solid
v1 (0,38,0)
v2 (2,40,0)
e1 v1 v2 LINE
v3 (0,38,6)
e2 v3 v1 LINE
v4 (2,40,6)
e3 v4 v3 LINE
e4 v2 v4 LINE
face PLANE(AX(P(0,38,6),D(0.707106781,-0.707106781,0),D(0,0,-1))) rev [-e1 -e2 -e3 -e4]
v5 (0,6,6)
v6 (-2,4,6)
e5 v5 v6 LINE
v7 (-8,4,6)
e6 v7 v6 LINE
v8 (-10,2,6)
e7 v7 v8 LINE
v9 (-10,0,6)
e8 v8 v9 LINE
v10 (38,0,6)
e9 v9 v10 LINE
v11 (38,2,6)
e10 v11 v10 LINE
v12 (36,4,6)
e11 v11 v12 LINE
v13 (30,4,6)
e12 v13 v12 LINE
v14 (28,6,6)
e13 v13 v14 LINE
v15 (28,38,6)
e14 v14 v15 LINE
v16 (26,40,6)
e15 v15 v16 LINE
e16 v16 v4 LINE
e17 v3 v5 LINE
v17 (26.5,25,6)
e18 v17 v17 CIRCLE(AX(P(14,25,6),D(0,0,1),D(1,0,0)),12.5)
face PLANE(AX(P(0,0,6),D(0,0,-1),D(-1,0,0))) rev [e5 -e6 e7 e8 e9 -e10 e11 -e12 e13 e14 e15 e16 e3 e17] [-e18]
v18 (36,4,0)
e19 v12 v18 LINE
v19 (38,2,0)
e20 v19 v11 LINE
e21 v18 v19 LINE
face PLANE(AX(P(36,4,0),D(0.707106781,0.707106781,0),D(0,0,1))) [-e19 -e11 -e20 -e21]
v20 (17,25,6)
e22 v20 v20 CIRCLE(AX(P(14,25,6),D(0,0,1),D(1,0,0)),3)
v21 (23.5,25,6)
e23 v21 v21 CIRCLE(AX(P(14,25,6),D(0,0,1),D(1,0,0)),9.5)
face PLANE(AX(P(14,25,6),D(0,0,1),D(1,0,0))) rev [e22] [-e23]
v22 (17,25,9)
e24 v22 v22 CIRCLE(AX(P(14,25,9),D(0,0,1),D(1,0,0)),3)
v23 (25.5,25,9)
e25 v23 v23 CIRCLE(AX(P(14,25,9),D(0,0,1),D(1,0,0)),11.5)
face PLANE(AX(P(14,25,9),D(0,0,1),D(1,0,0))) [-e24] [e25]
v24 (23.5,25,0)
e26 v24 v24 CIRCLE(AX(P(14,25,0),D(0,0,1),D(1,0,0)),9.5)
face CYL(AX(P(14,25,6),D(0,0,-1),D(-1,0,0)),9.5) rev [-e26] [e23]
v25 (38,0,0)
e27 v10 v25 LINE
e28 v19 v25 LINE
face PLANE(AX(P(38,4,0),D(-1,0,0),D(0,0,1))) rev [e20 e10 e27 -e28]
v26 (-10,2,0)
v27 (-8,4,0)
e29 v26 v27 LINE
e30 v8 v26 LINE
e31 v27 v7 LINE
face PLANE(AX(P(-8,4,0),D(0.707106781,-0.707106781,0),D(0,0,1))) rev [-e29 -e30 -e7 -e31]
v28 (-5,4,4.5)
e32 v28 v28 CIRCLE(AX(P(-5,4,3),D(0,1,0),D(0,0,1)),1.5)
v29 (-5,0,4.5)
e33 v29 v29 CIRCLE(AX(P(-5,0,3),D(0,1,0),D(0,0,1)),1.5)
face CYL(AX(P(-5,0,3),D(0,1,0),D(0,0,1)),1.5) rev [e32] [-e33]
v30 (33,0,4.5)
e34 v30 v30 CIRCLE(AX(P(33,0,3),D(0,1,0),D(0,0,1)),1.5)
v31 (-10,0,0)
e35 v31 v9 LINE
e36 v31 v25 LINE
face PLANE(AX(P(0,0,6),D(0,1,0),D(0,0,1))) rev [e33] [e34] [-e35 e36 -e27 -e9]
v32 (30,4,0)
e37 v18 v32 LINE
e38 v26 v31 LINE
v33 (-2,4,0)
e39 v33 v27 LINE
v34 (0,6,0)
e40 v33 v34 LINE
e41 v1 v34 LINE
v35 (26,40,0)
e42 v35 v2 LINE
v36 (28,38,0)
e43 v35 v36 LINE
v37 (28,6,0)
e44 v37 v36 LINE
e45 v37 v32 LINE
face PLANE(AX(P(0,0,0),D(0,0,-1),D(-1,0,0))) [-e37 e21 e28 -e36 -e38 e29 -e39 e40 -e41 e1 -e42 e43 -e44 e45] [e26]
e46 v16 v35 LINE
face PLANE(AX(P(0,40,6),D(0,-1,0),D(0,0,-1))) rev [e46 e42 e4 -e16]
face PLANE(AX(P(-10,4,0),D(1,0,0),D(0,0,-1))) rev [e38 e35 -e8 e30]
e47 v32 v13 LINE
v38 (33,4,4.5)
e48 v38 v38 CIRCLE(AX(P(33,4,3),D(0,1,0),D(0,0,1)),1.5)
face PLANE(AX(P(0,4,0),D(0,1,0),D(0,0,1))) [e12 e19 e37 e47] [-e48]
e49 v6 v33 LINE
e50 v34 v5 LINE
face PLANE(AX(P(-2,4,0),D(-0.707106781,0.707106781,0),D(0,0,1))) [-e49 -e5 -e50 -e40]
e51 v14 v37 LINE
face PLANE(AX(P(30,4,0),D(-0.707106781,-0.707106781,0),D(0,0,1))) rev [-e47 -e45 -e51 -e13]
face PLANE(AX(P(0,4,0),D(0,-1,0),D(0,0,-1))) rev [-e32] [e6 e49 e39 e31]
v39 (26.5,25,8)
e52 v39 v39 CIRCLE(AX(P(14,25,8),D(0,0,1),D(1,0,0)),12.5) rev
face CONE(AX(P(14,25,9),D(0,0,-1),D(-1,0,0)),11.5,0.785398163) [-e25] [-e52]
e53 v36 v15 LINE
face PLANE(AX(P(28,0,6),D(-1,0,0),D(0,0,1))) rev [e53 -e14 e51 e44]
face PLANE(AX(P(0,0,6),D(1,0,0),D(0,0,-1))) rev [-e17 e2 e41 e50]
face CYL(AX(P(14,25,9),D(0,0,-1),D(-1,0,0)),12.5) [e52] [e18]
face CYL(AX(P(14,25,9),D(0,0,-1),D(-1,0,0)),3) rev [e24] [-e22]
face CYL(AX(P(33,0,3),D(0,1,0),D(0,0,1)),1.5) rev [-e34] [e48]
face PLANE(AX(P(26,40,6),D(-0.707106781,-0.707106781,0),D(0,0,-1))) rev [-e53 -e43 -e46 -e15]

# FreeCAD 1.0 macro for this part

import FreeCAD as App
import Part
import Sketcher
from FreeCAD import Vector
Q = App.Units.Quantity


def edges_at(feature, points):
    """Names of the edges that pass closest to the given points."""
    edges = feature.Shape.Edges
    near = lambda p: min(range(len(edges)), key=lambda i: edges[i].distToShape(Part.Vertex(*p))[0])
    return sorted({f"Edge{near(p) + 1}" for p in points})

doc = App.newDocument("Part")
params = doc.addObject("Spreadsheet::Sheet", "Params")
for row, (alias, value) in enumerate([
    ("sketch1_diameter", "19 mm"),
    ("sketch1_width", "28 mm"),
    ("sketch1_height", "40 mm"),
    ("pad1_length", "6 mm"),
    ("sketch2_width", "10 mm"),
    ("sketch2_height", "6 mm"),
    ("pad2_length", "4 mm"),
    ("chamfer_size", "2 mm"),
    ("sketch3_diameter", "3 mm"),
    ("sketch4_diameter", "25 mm"),
    ("sketch4_diameter2", "6 mm"),
    ("pad3_length", "3 mm"),
    ("chamfer2_size", "1 mm"),
], start=1):
    params.set(f"A{row}", alias)
    params.set(f"B{row}", "=" + value)
    params.setAlias(f"B{row}", alias)

body = doc.addObject("PartDesign::Body", "Body")

# Sketch on XY plane
sketch1 = doc.addObject("Sketcher::SketchObject", "Sketch")
body.addObject(sketch1)
sketch1.AttachmentSupport = (doc.XY_Plane, [""])
sketch1.MapMode = "FlatFace"
sketch1.addGeometry([
    Part.LineSegment(Vector(0, 40, 0), Vector(0, 0, 0)),  # 0
    Part.LineSegment(Vector(0, 0, 0), Vector(28, 0, 0)),  # 1
    Part.LineSegment(Vector(28, 0, 0), Vector(28, 40, 0)),  # 2
    Part.LineSegment(Vector(28, 40, 0), Vector(0, 40, 0)),  # 3
    Part.Circle(Vector(14, 25, 0), Vector(0, 0, 1), 10),  # 4
], False)
sketch1.addConstraint([
    Sketcher.Constraint("Coincident", 0, 2, 1, 1),
    Sketcher.Constraint("Coincident", 1, 2, 2, 1),
    Sketcher.Constraint("Coincident", 2, 2, 3, 1),
    Sketcher.Constraint("Coincident", 3, 2, 0, 1),
    Sketcher.Constraint("Vertical", 0),
    Sketcher.Constraint("Horizontal", 1),
    Sketcher.Constraint("Vertical", 2),
    Sketcher.Constraint("Horizontal", 3),
    Sketcher.Constraint("Coincident", 0, 2, -1, 1),
    Sketcher.Constraint("Diameter", 4, Q("19 mm")),
    Sketcher.Constraint("DistanceX", 1, 1, 1, 2, Q("28 mm")),
    Sketcher.Constraint("DistanceY", 0, 2, 0, 1, Q("40 mm")),
    Sketcher.Constraint("DistanceX", -1, 1, 4, 3, Q("14 mm")),
    Sketcher.Constraint("DistanceY", -1, 1, 4, 3, Q("25 mm")),
])
sketch1.setExpression("Constraints[9]", "Params.sketch1_diameter")
sketch1.setExpression("Constraints[10]", "Params.sketch1_width")
sketch1.setExpression("Constraints[11]", "Params.sketch1_height")
pad1 = doc.addObject("PartDesign::Pad", "Pad")
body.addObject(pad1)
pad1.Profile = sketch1
pad1.setExpression("Length", "Params.pad1_length")

# Sketch on XZ plane
sketch2 = doc.addObject("Sketcher::SketchObject", "Sketch001")
body.addObject(sketch2)
sketch2.AttachmentSupport = (doc.XZ_Plane, [""])
sketch2.MapMode = "FlatFace"
sketch2.addGeometry([
    Part.LineSegment(Vector(-10, 0, 0), Vector(-10, 6, 0)),  # 0
    Part.LineSegment(Vector(-10, 6, 0), Vector(0, 6, 0)),  # 1
    Part.LineSegment(Vector(0, 6, 0), Vector(0, 0, 0)),  # 2
    Part.LineSegment(Vector(0, 0, 0), Vector(-10, 0, 0)),  # 3
    Part.LineSegment(Vector(28, 0, 0), Vector(28, 6, 0)),  # 4
    Part.LineSegment(Vector(28, 6, 0), Vector(38, 6, 0)),  # 5
    Part.LineSegment(Vector(38, 6, 0), Vector(38, 0, 0)),  # 6
    Part.LineSegment(Vector(38, 0, 0), Vector(28, 0, 0)),  # 7
], False)
sketch2.addConstraint([
    Sketcher.Constraint("Coincident", 0, 2, 1, 1),
    Sketcher.Constraint("Coincident", 1, 2, 2, 1),
    Sketcher.Constraint("Coincident", 2, 2, 3, 1),
    Sketcher.Constraint("Coincident", 3, 2, 0, 1),
    Sketcher.Constraint("Coincident", 4, 2, 5, 1),
    Sketcher.Constraint("Coincident", 5, 2, 6, 1),
    Sketcher.Constraint("Coincident", 6, 2, 7, 1),
    Sketcher.Constraint("Coincident", 7, 2, 4, 1),
    Sketcher.Constraint("Vertical", 0),
    Sketcher.Constraint("Horizontal", 1),
    Sketcher.Constraint("Vertical", 2),
    Sketcher.Constraint("Horizontal", 3),
    Sketcher.Constraint("Vertical", 4),
    Sketcher.Constraint("Horizontal", 5),
    Sketcher.Constraint("Vertical", 6),
    Sketcher.Constraint("Horizontal", 7),
    Sketcher.Constraint("Coincident", 2, 2, -1, 1),
    Sketcher.Constraint("PointOnObject", 6, 2, -1),
    Sketcher.Constraint("Horizontal", 1, 2, 4, 2),
    Sketcher.Constraint("Equal", 3, 5),
    Sketcher.Constraint("DistanceX", 1, 1, 1, 2, Q("10 mm")),
    Sketcher.Constraint("DistanceY", 0, 1, 0, 2, Q("6 mm")),
    Sketcher.Constraint("DistanceX", -1, 1, 4, 2, Q("28 mm")),
])
sketch2.setExpression("Constraints[20]", "Params.sketch2_width")
sketch2.setExpression("Constraints[21]", "Params.sketch2_height")
pad2 = doc.addObject("PartDesign::Pad", "Pad001")
body.addObject(pad2)
pad2.Profile = sketch2
pad2.setExpression("Length", "Params.pad2_length")
pad2.Reversed = True
doc.recompute()

chamfer = doc.addObject("PartDesign::Chamfer", "Chamfer")
body.addObject(chamfer)
chamfer.Base = (pad2, edges_at(pad2, [
    (0, 4, 3),
    (-10, 4, 3),
    (28, 4, 3),
    (38, 4, 3),
    (0, 40, 3),
    (28, 40, 3),
]))
chamfer.setExpression("Size", "Params.chamfer_size")

# Sketch on XZ plane
sketch3 = doc.addObject("Sketcher::SketchObject", "Sketch002")
body.addObject(sketch3)
sketch3.AttachmentSupport = (doc.XZ_Plane, [""])
sketch3.MapMode = "FlatFace"
sketch3.AttachmentOffset = App.Placement(Vector(0, 0, -4), App.Rotation())
sketch3.addGeometry([
    Part.Circle(Vector(-5, 3, 0), Vector(0, 0, 1), 1.5),
    Part.Circle(Vector(33, 3, 0), Vector(0, 0, 1), 1.5),
], False)
sketch3.addConstraint([
    Sketcher.Constraint("Equal", 0, 1),
    Sketcher.Constraint("Horizontal", 0, 3, 1, 3),
    Sketcher.Constraint("Diameter", 0, Q("3 mm")),
    Sketcher.Constraint("DistanceX", 0, 3, -1, 1, Q("5 mm")),
    Sketcher.Constraint("DistanceY", -1, 1, 0, 3, Q("3 mm")),
    Sketcher.Constraint("DistanceX", -1, 1, 1, 3, Q("33 mm")),
])
sketch3.setExpression("Constraints[2]", "Params.sketch3_diameter")
pocket1 = doc.addObject("PartDesign::Pocket", "Pocket")
body.addObject(pocket1)
pocket1.Profile = sketch3
pocket1.Type = "ThroughAll"
pocket1.Reversed = True

# Sketch on XY plane
sketch4 = doc.addObject("Sketcher::SketchObject", "Sketch003")
body.addObject(sketch4)
sketch4.AttachmentSupport = (doc.XY_Plane, [""])
sketch4.MapMode = "FlatFace"
sketch4.AttachmentOffset = App.Placement(Vector(0, 0, 6), App.Rotation())
sketch4.addGeometry([
    Part.Circle(Vector(14, 25, 0), Vector(0, 0, 1), 12.5),
    Part.Circle(Vector(14, 25, 0), Vector(0, 0, 1), 3),
], False)
sketch4.addConstraint([
    Sketcher.Constraint("Coincident", 1, 3, 0, 3),
    Sketcher.Constraint("Diameter", 0, Q("25 mm")),
    Sketcher.Constraint("Diameter", 1, Q("6 mm")),
    Sketcher.Constraint("DistanceX", -1, 1, 0, 3, Q("14 mm")),
    Sketcher.Constraint("DistanceY", -1, 1, 0, 3, Q("25 mm")),
])
sketch4.setExpression("Constraints[1]", "Params.sketch4_diameter")
sketch4.setExpression("Constraints[2]", "Params.sketch4_diameter2")
pad3 = doc.addObject("PartDesign::Pad", "Pad002")
body.addObject(pad3)
pad3.Profile = sketch4
pad3.setExpression("Length", "Params.pad3_length")
doc.recompute()

chamfer2 = doc.addObject("PartDesign::Chamfer", "Chamfer001")
body.addObject(chamfer2)
chamfer2.Base = (pad3, edges_at(pad3, [(1.5, 25, 9)]))
chamfer2.setExpression("Size", "Params.chamfer2_size")

doc.recompute()
